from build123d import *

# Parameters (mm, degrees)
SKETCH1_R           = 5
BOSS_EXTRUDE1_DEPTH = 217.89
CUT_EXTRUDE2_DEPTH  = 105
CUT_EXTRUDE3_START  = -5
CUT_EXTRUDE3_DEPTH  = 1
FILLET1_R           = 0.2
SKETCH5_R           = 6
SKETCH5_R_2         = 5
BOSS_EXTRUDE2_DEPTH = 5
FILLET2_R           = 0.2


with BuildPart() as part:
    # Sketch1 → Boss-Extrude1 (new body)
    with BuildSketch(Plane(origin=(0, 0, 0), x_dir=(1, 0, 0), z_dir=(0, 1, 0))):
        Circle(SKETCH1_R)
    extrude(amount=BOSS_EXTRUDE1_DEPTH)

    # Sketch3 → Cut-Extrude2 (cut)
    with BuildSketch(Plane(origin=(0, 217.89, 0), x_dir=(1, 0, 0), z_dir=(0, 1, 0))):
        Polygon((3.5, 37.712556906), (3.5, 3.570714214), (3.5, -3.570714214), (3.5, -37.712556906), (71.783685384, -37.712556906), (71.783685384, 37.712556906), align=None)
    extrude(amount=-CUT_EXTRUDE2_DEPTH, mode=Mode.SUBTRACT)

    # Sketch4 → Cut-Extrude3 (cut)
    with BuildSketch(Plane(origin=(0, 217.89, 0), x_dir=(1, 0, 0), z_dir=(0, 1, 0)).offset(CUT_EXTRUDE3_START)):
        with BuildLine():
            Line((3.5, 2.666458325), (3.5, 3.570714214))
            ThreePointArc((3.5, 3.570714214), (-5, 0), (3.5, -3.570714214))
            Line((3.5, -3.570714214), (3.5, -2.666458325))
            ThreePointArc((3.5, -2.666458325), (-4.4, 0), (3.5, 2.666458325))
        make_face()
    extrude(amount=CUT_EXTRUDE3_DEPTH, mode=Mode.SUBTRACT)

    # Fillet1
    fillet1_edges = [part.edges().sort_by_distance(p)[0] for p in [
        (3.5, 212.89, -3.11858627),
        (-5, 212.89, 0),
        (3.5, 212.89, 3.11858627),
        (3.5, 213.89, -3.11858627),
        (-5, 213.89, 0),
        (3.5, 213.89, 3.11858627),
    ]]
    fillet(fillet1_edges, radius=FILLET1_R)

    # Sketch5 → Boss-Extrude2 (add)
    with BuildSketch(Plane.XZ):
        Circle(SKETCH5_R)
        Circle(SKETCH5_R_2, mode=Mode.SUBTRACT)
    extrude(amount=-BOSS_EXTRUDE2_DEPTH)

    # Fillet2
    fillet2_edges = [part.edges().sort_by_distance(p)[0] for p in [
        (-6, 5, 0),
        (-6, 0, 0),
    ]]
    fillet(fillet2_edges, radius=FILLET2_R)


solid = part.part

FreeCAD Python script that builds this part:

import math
import FreeCAD as App
import Part
import Sketcher
Q = App.Units.Quantity


def edges_at(feature, points):
    """Names of the edges that pass closest to the given points."""
    edges = feature.Shape.Edges
    near = lambda p: min(range(len(edges)), key=lambda i: edges[i].distToShape(Part.Vertex(*p))[0])
    return sorted({f"Edge{near(p) + 1}" for p in points})


def add_polygon(sketch, points):
    """Adds a closed chain of lines whose ends are joined by coincident constraints."""
    first, n = sketch.GeometryCount, len(points)
    for a, b in zip(points, points[1:] + points[:1]):
        sketch.addGeometry(Part.LineSegment(App.Vector(*a, 0), App.Vector(*b, 0)), False)
    for i in range(n):
        sketch.addConstraint(Sketcher.Constraint("Coincident", first + i, 2, first + (i + 1) % n, 1))

doc = App.newDocument("Part")
body = doc.addObject("PartDesign::Body", "Body")

# Sketch on XZ plane
sketch1 = body.newObject("Sketcher::SketchObject", "Sketch")
sketch1.AttachmentSupport = (doc.getObject("XZ_Plane"), [""])
sketch1.MapMode = "FlatFace"
sketch1.addGeometry(Part.Circle(App.Vector(0, 0, 0), App.Vector(0, 0, 1), 5), False)
sketch1.addConstraint([
    Sketcher.Constraint("Coincident", 0, 3, -1, 1),
    Sketcher.Constraint("Diameter", 0, Q("10 mm")),
])
pad1 = body.newObject("PartDesign::Pad", "Pad")
pad1.Profile = sketch1
pad1.Length = 217.89
pad1.Reversed = True

# Sketch on XZ plane
sketch2 = body.newObject("Sketcher::SketchObject", "Sketch001")
sketch2.AttachmentSupport = (doc.getObject("XZ_Plane"), [""])
sketch2.MapMode = "FlatFace"
sketch2.AttachmentOffset = App.Placement(App.Vector(0, 0, -217.89), App.Rotation())
add_polygon(sketch2, [(4, -38), (4, 38), (72, 38), (72, -38)])  # lines 0-3
sketch2.addConstraint([
    Sketcher.Constraint("Vertical", 0),
    Sketcher.Constraint("Horizontal", 1),
    Sketcher.Constraint("Vertical", 2),
    Sketcher.Constraint("Horizontal", 3),
    Sketcher.Constraint("DistanceX", -1, 1, 0, 2, Q("3.5 mm")),
    Sketcher.Constraint("DistanceX", 1, 1, 1, 2, Q("68.283685 mm")),
    Sketcher.Constraint("DistanceY", 0, 1, 0, 2, Q("75.425114 mm")),
    Sketcher.Constraint("DistanceY", -1, 1, 0, 2, Q("37.712557 mm")),
])
pocket1 = body.newObject("PartDesign::Pocket", "Pocket")
pocket1.Profile = sketch2
pocket1.Length = 105
pocket1.Reversed = True

# Sketch on XZ plane
sketch3 = body.newObject("Sketcher::SketchObject", "Sketch002")
sketch3.AttachmentSupport = (doc.getObject("XZ_Plane"), [""])
sketch3.MapMode = "FlatFace"
sketch3.AttachmentOffset = App.Placement(App.Vector(0, 0, -212.89), App.Rotation())
sketch3.addGeometry([
    Part.LineSegment(App.Vector(3.5, -2.7, 0), App.Vector(3.5, -3.6, 0)),
    Part.ArcOfCircle(Part.Circle(App.Vector(0, 0, 0), App.Vector(0, 0, 1), 5), math.radians(46), math.radians(314)),
    Part.LineSegment(App.Vector(3.5, 3.6, 0), App.Vector(3.5, 2.7, 0)),
    Part.ArcOfCircle(Part.Circle(App.Vector(0, 0, 0), App.Vector(0, 0, 1), 4.4), math.radians(37), math.radians(323)),
], False)
sketch3.addConstraint([
    Sketcher.Constraint("Coincident", 0, 2, 1, 2),
    Sketcher.Constraint("Coincident", 1, 1, 2, 1),
    Sketcher.Constraint("Coincident", 2, 2, 3, 1),
    Sketcher.Constraint("Coincident", 3, 2, 0, 1),
    Sketcher.Constraint("Vertical", 0),
    Sketcher.Constraint("Vertical", 2),
    Sketcher.Constraint("Coincident", 1, 3, -1, 1),
    Sketcher.Constraint("Coincident", 3, 3, -1, 1),
    Sketcher.Constraint("Vertical", 0, 2, 1, 1),
    Sketcher.Constraint("Radius", 1, Q("5 mm")),
    Sketcher.Constraint("Radius", 3, Q("4.4 mm")),
    Sketcher.Constraint("DistanceX", -1, 1, 0, 2, Q("3.5 mm")),
])
pocket2 = body.newObject("PartDesign::Pocket", "Pocket001")
pocket2.Profile = sketch3
pocket2.Length = 1
doc.recompute()

fillet = body.newObject("PartDesign::Fillet", "Fillet")
fillet.Base = (pocket2, edges_at(pocket2, [
    (3.5, 212.89, -3.119),
    (-5, 212.89, 0),
    (3.5, 212.89, 3.119),
    (3.5, 213.89, -3.119),
    (-5, 213.89, 0),
    (3.5, 213.89, 3.119),
]))
fillet.Radius = 0.2

# Sketch on XZ plane
sketch4 = body.newObject("Sketcher::SketchObject", "Sketch003")
sketch4.AttachmentSupport = (doc.getObject("XZ_Plane"), [""])
sketch4.MapMode = "FlatFace"
sketch4.addGeometry([
    Part.Circle(App.Vector(0, 0, 0), App.Vector(0, 0, 1), 6),
    Part.Circle(App.Vector(0, 0, 0), App.Vector(0, 0, 1), 5),
], False)
sketch4.addConstraint([
    Sketcher.Constraint("Coincident", 0, 3, -1, 1),
    Sketcher.Constraint("Coincident", 1, 3, -1, 1),
    Sketcher.Constraint("Diameter", 0, Q("12 mm")),
    Sketcher.Constraint("Diameter", 1, Q("10 mm")),
])
pad2 = body.newObject("PartDesign::Pad", "Pad001")
pad2.Profile = sketch4
pad2.Length = 5
pad2.Reversed = True
doc.recompute()

fillet2 = body.newObject("PartDesign::Fillet", "Fillet001")
fillet2.Base = (pad2, edges_at(pad2, [(-6, 5, 0), (-6, 0, 0)]))
fillet2.Radius = 0.2

doc.recompute()
